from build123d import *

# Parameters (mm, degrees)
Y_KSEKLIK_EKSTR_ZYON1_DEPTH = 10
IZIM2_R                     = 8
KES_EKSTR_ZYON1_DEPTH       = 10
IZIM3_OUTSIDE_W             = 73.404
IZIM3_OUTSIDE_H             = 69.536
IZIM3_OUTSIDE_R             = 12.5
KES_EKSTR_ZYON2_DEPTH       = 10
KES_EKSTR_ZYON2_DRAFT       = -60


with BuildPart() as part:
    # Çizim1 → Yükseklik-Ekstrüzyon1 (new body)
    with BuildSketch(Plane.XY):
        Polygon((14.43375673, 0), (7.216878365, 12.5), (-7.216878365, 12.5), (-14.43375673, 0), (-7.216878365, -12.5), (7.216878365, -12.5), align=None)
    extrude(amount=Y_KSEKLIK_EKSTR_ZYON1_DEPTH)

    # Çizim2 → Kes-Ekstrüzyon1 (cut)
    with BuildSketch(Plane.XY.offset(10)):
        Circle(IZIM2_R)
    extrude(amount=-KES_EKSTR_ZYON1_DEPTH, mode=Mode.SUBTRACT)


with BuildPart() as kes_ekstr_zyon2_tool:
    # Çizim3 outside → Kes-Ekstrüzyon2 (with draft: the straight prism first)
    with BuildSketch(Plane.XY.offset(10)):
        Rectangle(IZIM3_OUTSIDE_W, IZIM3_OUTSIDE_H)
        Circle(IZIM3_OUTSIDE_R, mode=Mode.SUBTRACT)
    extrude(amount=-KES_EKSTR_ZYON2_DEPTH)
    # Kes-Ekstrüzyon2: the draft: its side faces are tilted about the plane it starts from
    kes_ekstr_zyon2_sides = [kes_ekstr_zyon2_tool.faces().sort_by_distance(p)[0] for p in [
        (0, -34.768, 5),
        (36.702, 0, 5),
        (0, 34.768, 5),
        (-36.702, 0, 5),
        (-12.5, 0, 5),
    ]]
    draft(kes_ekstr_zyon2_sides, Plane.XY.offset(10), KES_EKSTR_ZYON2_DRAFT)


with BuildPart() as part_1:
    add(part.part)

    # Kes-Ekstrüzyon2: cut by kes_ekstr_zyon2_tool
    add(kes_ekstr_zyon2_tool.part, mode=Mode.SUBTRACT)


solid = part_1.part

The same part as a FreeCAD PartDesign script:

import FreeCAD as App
import Part
import Sketcher

V = App.Vector
Q = App.Units.Quantity


def faces_at(feature, points):
    """Names of the faces that lie closest to the given points."""
    faces = feature.Shape.Faces
    near = lambda p: min(range(len(faces)), key=lambda i: faces[i].distToShape(Part.Vertex(*p))[0])
    return sorted({f"Face{near(p) + 1}" for p in points})

doc = App.newDocument("Part")
body = doc.addObject("PartDesign::Body", "Body")

# Sketch on XY plane
sketch1 = doc.addObject("Sketcher::SketchObject", "Sketch")
body.addObject(sketch1)
sketch1.AttachmentSupport = (doc.XY_Plane, [""])
sketch1.MapMode = "FlatFace"
sketch1.addGeometry(Part.LineSegment(V(14, 0, 0), V(7, 12, 0)), False)
sketch1.addGeometry(Part.LineSegment(V(7, 12, 0), V(-7, 12, 0)), False)
sketch1.addGeometry(Part.LineSegment(V(-7, 12, 0), V(-14, 0, 0)), False)
sketch1.addGeometry(Part.LineSegment(V(-14, 0, 0), V(-7, -12, 0)), False)
sketch1.addGeometry(Part.LineSegment(V(-7, -12, 0), V(7, -12, 0)), False)
sketch1.addGeometry(Part.LineSegment(V(7, -12, 0), V(14, 0, 0)), False)
sketch1.addConstraint(Sketcher.Constraint("Coincident", 0, 2, 1, 1))
sketch1.addConstraint(Sketcher.Constraint("Coincident", 1, 2, 2, 1))
sketch1.addConstraint(Sketcher.Constraint("Coincident", 2, 2, 3, 1))
sketch1.addConstraint(Sketcher.Constraint("Coincident", 3, 2, 4, 1))
sketch1.addConstraint(Sketcher.Constraint("Coincident", 4, 2, 5, 1))
sketch1.addConstraint(Sketcher.Constraint("Coincident", 5, 2, 0, 1))
sketch1.addConstraint(Sketcher.Constraint("Horizontal", 1))
sketch1.addConstraint(Sketcher.Constraint("Horizontal", 4))
sketch1.addConstraint(Sketcher.Constraint("Symmetric", 0, 2, 3, 2, -1, 1))
sketch1.addConstraint(Sketcher.Constraint("Symmetric", 2, 2, 5, 2, -1, 1))
sketch1.addConstraint(Sketcher.Constraint("PointOnObject", 2, 2, -1))
sketch1.addConstraint(Sketcher.Constraint("Parallel", 2, 5))
sketch1.addConstraint(Sketcher.Constraint("Vertical", 1, 2, 3, 2))
sketch1.addConstraint(Sketcher.Constraint("Angle", 0, Q("120 deg")))
sketch1.addConstraint(Sketcher.Constraint("DistanceY", 3, 2, 1, 2, 25.0))
sketch1.addConstraint(Sketcher.Constraint("DistanceX", 1, 2, 1, 1, 14.433757))
pad1 = doc.addObject("PartDesign::Pad", "Pad")
body.addObject(pad1)
pad1.Profile = sketch1
pad1.Length = 10

# Sketch on XY plane
sketch2 = doc.addObject("Sketcher::SketchObject", "Sketch001")
body.addObject(sketch2)
sketch2.AttachmentSupport = (doc.XY_Plane, [""])
sketch2.MapMode = "FlatFace"
sketch2.AttachmentOffset = App.Placement(V(0, 0, 10), App.Rotation())
sketch2.addGeometry(Part.Circle(V(0, 0, 0), V(0, 0, 1), 8), False)
sketch2.addConstraint(Sketcher.Constraint("Coincident", 0, 3, -1, 1))
sketch2.addConstraint(Sketcher.Constraint("Diameter", 0, 16.0))
pocket1 = doc.addObject("PartDesign::Pocket", "Pocket")
body.addObject(pocket1)
pocket1.Profile = sketch2
pocket1.Length = 10
body2 = doc.addObject("PartDesign::Body", "Body001")

# Sketch on XY plane
sketch3 = doc.addObject("Sketcher::SketchObject", "Sketch002")
body2.addObject(sketch3)
sketch3.AttachmentSupport = (doc.getObject("XY_Plane001"), [""])
sketch3.MapMode = "FlatFace"
sketch3.AttachmentOffset = App.Placement(V(0, 0, 10), App.Rotation())
sketch3.addGeometry(Part.LineSegment(V(-37, 35, 0), V(-37, -35, 0)), False)
sketch3.addGeometry(Part.LineSegment(V(-37, -35, 0), V(37, -35, 0)), False)
sketch3.addGeometry(Part.LineSegment(V(37, -35, 0), V(37, 35, 0)), False)
sketch3.addGeometry(Part.LineSegment(V(37, 35, 0), V(-37, 35, 0)), False)
sketch3.addGeometry(Part.Circle(V(0, 0, 0), V(0, 0, 1), 12), False)
sketch3.addConstraint(Sketcher.Constraint("Coincident", 0, 2, 1, 1))
sketch3.addConstraint(Sketcher.Constraint("Coincident", 1, 2, 2, 1))
sketch3.addConstraint(Sketcher.Constraint("Coincident", 2, 2, 3, 1))
sketch3.addConstraint(Sketcher.Constraint("Coincident", 3, 2, 0, 1))
sketch3.addConstraint(Sketcher.Constraint("Vertical", 0))
sketch3.addConstraint(Sketcher.Constraint("Horizontal", 1))
sketch3.addConstraint(Sketcher.Constraint("Vertical", 2))
sketch3.addConstraint(Sketcher.Constraint("Horizontal", 3))
sketch3.addConstraint(Sketcher.Constraint("Coincident", 4, 3, -1, 1))
sketch3.addConstraint(Sketcher.Constraint("Symmetric", 0, 2, 2, 2, -1, 1))
sketch3.addConstraint(Sketcher.Constraint("Diameter", 4, 25.0))
sketch3.addConstraint(Sketcher.Constraint("DistanceX", 1, 1, 1, 2, 73.404))
sketch3.addConstraint(Sketcher.Constraint("DistanceY", 0, 2, 0, 1, 69.536))
pad2 = doc.addObject("PartDesign::Pad", "Pad001")
body2.addObject(pad2)
pad2.Profile = sketch3
pad2.Length = 10
pad2.Reversed = True
doc.recompute()

datumplane = doc.addObject("PartDesign::Plane", "DatumPlane")
body2.addObject(datumplane)
datumplane.AttachmentSupport = (doc.getObject("XY_Plane001"), [""])
datumplane.MapMode = "FlatFace"
datumplane.AttachmentOffset = App.Placement(V(0, 0, 10), App.Rotation())
draft = doc.addObject("PartDesign::Draft", "Draft")
body2.addObject(draft)
draft.Base = (pad2, faces_at(pad2, [
    (0, -34.768, 5),
    (36.702, 0, 5),
    (0, 34.768, 5),
    (-36.702, 0, 5),
    (-12.5, 0, 5),
]))
draft.NeutralPlane = (datumplane, [""])
draft.Angle = 60
draft.Reversed = True
doc.recompute()

boolean = doc.addObject("PartDesign::Boolean", "Boolean")
body.addObject(boolean)
boolean.Type = "Cut"
boolean.addObjects([body2])

doc.recompute()
